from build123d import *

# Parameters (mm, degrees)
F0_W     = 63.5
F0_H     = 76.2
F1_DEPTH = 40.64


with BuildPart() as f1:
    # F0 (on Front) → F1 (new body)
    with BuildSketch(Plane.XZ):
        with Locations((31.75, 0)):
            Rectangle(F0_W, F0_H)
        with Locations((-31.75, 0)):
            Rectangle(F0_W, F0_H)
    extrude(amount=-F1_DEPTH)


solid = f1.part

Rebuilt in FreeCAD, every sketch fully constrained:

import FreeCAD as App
import Part
import Sketcher

V = App.Vector
Q = App.Units.Quantity


def add_polygon(sketch, points):
    """Adds a closed chain of lines whose ends are joined by coincident constraints."""
    first, n = sketch.GeometryCount, len(points)
    for a, b in zip(points, points[1:] + points[:1]):
        sketch.addGeometry(Part.LineSegment(App.Vector(*a, 0), App.Vector(*b, 0)), False)
    for i in range(n):
        sketch.addConstraint(Sketcher.Constraint("Coincident", first + i, 2, first + (i + 1) % n, 1))

doc = App.newDocument("Part")
body = doc.addObject("PartDesign::Body", "Body")

sketch1 = doc.addObject("Sketcher::SketchObject", "Sketch")
body.addObject(sketch1)
sketch1.AttachmentSupport = (doc.XZ_Plane, [""])
sketch1.MapMode = "FlatFace"
add_polygon(sketch1, [(63.5, -38.1), (63.5, 38.1), (-63.5, 38.1), (-63.5, -38.1)])
sketch1.addConstraint(Sketcher.Constraint("Vertical", 0))
sketch1.addConstraint(Sketcher.Constraint("Horizontal", 1))
sketch1.addConstraint(Sketcher.Constraint("Vertical", 2))
sketch1.addConstraint(Sketcher.Constraint("Horizontal", 3))
sketch1.addConstraint(Sketcher.Constraint("Symmetric", 0, 2, 2, 2, -1, 1))
sketch1.addConstraint(Sketcher.Constraint("DistanceX", 1, 2, 1, 1, Q("5 in")))
sketch1.addConstraint(Sketcher.Constraint("DistanceY", 0, 1, 0, 2, Q("3 in")))
pad1 = doc.addObject("PartDesign::Pad", "Pad")
body.addObject(pad1)
pad1.Profile = sketch1
pad1.Length = Q("1.6 in")
pad1.Reversed = True

doc.recompute()
